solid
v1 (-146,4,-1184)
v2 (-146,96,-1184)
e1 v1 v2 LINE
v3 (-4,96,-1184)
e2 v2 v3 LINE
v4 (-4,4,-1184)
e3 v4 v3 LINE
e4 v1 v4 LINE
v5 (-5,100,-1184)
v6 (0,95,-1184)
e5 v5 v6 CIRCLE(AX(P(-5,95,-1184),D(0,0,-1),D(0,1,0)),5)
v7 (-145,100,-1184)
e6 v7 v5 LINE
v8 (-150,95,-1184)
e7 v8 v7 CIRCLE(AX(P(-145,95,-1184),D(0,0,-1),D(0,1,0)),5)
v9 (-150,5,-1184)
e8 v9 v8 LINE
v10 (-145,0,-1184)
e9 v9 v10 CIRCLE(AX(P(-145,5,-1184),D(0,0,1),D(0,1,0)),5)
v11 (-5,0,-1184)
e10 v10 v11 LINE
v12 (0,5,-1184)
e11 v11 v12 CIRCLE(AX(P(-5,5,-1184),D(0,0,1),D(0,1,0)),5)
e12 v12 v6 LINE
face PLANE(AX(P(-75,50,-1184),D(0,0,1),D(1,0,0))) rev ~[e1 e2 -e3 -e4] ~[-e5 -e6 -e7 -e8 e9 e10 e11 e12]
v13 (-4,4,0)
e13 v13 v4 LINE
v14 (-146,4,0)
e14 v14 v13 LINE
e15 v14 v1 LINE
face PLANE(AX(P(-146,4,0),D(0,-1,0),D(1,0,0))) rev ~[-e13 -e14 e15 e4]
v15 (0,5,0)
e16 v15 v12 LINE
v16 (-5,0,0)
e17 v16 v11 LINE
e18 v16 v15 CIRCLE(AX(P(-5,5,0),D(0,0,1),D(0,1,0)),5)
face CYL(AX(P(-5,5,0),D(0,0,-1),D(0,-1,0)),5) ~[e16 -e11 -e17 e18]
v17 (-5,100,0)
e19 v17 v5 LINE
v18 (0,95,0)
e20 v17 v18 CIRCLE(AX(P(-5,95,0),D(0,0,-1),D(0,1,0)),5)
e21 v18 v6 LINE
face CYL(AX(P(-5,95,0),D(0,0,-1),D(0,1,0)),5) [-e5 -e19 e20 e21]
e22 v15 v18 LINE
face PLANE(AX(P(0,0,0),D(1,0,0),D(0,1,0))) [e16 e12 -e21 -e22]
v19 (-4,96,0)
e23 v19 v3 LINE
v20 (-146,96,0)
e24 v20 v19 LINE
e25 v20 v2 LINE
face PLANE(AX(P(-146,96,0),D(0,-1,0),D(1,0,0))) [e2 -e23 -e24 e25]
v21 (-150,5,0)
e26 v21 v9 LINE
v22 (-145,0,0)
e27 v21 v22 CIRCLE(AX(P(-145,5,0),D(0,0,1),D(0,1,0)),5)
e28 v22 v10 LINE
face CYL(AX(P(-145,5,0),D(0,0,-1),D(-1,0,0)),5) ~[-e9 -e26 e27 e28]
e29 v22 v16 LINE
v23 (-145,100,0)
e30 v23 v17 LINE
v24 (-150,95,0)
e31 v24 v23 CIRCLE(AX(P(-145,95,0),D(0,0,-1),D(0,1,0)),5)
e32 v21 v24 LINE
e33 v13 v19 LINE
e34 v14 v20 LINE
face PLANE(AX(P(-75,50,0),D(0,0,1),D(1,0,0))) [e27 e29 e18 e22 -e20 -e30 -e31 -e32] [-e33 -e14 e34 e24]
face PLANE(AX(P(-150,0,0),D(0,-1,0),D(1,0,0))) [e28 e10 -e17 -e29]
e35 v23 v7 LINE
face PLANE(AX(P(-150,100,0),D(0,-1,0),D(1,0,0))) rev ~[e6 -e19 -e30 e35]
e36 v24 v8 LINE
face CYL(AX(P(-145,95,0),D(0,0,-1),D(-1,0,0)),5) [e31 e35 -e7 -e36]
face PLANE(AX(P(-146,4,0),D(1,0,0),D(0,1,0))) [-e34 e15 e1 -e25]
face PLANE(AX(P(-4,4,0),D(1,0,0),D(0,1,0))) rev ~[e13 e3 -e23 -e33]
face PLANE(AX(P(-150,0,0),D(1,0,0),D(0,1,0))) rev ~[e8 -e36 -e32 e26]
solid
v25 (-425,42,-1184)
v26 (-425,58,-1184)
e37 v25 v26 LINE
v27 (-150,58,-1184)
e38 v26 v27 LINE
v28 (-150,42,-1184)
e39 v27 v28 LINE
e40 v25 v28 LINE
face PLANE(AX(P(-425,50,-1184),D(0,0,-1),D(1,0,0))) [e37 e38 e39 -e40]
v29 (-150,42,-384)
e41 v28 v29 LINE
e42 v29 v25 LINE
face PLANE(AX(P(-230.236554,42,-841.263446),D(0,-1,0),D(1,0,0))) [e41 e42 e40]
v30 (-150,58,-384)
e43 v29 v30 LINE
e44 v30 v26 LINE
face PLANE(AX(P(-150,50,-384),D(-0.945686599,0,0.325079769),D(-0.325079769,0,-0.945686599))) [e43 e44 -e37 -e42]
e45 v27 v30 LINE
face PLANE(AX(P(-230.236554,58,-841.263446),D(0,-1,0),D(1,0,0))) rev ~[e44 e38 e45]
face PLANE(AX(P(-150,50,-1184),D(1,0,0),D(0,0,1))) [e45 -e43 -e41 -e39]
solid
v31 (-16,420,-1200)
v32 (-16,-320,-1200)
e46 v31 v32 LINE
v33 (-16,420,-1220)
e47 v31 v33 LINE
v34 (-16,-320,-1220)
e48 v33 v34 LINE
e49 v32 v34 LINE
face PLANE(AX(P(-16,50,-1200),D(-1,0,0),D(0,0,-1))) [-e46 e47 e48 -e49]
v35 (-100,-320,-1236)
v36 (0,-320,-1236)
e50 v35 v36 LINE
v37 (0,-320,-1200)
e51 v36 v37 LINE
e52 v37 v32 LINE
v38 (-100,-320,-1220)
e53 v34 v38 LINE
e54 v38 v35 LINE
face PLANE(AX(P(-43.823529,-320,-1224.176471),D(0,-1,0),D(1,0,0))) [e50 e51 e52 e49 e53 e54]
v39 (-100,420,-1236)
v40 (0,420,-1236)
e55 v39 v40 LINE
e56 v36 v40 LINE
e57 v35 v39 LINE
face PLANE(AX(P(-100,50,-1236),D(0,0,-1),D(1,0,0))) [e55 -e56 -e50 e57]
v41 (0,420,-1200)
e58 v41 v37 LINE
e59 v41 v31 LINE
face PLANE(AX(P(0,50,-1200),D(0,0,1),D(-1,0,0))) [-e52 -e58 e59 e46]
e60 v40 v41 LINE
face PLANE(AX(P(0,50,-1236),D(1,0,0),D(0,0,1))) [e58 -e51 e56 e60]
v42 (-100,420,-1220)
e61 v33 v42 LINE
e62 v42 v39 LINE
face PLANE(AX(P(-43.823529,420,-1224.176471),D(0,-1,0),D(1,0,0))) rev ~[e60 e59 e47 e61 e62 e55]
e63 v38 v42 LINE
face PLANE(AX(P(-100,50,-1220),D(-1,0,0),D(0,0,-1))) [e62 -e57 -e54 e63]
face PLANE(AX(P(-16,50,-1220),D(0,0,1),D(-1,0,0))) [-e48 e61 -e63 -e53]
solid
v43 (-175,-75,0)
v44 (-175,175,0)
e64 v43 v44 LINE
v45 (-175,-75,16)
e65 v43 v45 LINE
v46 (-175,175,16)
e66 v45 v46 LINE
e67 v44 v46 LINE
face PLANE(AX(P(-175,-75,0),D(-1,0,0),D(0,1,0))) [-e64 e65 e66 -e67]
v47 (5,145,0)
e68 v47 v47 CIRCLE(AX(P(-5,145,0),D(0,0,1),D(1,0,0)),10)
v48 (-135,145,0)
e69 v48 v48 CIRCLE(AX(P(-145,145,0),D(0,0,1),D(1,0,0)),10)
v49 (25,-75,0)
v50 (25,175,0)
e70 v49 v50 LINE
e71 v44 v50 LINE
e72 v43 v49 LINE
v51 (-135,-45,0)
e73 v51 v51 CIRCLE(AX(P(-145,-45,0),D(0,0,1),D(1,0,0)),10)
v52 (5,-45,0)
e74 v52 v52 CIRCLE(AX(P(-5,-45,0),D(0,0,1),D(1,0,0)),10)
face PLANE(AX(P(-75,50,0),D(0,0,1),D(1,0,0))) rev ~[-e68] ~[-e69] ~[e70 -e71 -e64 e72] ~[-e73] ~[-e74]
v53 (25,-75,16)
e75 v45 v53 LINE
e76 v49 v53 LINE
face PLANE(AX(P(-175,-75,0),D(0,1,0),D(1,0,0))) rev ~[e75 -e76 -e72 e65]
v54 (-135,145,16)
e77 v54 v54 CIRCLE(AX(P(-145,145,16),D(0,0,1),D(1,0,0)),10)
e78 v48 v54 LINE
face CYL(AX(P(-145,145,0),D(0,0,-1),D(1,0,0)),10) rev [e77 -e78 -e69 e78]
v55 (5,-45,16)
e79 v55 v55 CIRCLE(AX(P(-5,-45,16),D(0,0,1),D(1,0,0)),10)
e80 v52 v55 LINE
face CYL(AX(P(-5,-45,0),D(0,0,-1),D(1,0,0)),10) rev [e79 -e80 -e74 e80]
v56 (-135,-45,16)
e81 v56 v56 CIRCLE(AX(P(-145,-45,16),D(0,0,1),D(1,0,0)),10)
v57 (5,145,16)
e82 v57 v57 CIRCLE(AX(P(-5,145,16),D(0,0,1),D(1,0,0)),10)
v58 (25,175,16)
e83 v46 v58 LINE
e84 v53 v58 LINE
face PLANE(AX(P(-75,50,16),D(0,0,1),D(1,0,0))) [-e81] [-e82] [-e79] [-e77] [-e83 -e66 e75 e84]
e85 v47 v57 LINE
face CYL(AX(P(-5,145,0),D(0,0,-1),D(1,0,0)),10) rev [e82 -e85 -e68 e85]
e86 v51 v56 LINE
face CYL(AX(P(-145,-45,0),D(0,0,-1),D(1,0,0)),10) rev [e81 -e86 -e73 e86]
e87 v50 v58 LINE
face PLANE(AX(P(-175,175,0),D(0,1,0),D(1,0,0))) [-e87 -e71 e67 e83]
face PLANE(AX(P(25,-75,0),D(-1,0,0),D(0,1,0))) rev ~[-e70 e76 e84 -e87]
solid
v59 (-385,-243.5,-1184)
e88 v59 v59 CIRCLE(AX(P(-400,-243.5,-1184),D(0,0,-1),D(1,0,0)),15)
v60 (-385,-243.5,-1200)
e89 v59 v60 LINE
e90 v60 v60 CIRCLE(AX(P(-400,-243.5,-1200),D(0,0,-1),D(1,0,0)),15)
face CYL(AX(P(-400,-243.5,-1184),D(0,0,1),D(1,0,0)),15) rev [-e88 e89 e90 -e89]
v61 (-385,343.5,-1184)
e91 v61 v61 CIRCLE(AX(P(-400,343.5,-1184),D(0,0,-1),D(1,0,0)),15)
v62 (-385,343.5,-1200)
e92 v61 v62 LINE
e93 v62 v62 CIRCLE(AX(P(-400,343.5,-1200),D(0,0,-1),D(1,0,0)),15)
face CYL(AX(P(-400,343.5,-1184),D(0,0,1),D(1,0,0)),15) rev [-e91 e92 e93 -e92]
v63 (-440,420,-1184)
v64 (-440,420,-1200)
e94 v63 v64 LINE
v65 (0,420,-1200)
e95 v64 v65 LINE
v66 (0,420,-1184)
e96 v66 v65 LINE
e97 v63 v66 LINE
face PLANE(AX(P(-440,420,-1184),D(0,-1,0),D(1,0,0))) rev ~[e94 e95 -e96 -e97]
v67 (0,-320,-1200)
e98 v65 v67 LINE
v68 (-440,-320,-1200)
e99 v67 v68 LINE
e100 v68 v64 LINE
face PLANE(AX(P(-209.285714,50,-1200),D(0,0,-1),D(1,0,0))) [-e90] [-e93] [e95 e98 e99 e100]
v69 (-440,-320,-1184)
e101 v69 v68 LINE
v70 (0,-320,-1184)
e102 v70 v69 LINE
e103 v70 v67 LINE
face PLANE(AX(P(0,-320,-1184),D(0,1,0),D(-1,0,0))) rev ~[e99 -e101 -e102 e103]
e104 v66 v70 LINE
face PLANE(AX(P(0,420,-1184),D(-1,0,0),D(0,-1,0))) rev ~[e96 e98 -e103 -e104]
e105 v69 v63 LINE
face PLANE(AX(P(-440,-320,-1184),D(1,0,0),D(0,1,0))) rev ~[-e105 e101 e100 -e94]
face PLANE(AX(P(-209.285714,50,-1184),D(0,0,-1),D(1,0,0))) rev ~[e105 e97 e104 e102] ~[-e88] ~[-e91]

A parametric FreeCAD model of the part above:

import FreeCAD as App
import Part
import Sketcher


def edges_at(feature, points):
    """Names of the edges that pass closest to the given points."""
    edges = feature.Shape.Edges
    near = lambda p: min(range(len(edges)), key=lambda i: edges[i].distToShape(Part.Vertex(*p))[0])
    return sorted({f"Edge{near(p) + 1}" for p in points})

doc = App.newDocument("Part")
body = doc.addObject("PartDesign::Body", "Body")

# Sketch on XY plane
sketch1 = body.newObject("Sketcher::SketchObject", "Sketch")
sketch1.AttachmentSupport = (doc.getObject("XY_Plane"), [""])
sketch1.MapMode = "FlatFace"
sketch1.addGeometry(Part.LineSegment(App.Vector(-150, 100, 0), App.Vector(-150, 0, 0)), False)
sketch1.addGeometry(Part.LineSegment(App.Vector(-150, 0, 0), App.Vector(0, 0, 0)), False)
sketch1.addGeometry(Part.LineSegment(App.Vector(0, 0, 0), App.Vector(0, 100, 0)), False)
sketch1.addGeometry(Part.LineSegment(App.Vector(0, 100, 0), App.Vector(-150, 100, 0)), False)
sketch1.addGeometry(Part.LineSegment(App.Vector(-4, 4, 0), App.Vector(-146, 4, 0)), False)
sketch1.addGeometry(Part.LineSegment(App.Vector(-146, 4, 0), App.Vector(-146, 96, 0)), False)
sketch1.addGeometry(Part.LineSegment(App.Vector(-146, 96, 0), App.Vector(-4, 96, 0)), False)
sketch1.addGeometry(Part.LineSegment(App.Vector(-4, 96, 0), App.Vector(-4, 4, 0)), False)
sketch1.addConstraint(Sketcher.Constraint("Coincident", 0, 2, 1, 1))
sketch1.addConstraint(Sketcher.Constraint("Coincident", 1, 2, 2, 1))
sketch1.addConstraint(Sketcher.Constraint("Coincident", 2, 2, 3, 1))
sketch1.addConstraint(Sketcher.Constraint("Coincident", 3, 2, 0, 1))
sketch1.addConstraint(Sketcher.Constraint("Coincident", 4, 2, 5, 1))
sketch1.addConstraint(Sketcher.Constraint("Coincident", 5, 2, 6, 1))
sketch1.addConstraint(Sketcher.Constraint("Coincident", 6, 2, 7, 1))
sketch1.addConstraint(Sketcher.Constraint("Coincident", 7, 2, 4, 1))
sketch1.addConstraint(Sketcher.Constraint("Vertical", 0))
sketch1.addConstraint(Sketcher.Constraint("Horizontal", 1))
sketch1.addConstraint(Sketcher.Constraint("Vertical", 2))
sketch1.addConstraint(Sketcher.Constraint("Horizontal", 3))
sketch1.addConstraint(Sketcher.Constraint("Horizontal", 4))
sketch1.addConstraint(Sketcher.Constraint("Vertical", 5))
sketch1.addConstraint(Sketcher.Constraint("Horizontal", 6))
sketch1.addConstraint(Sketcher.Constraint("Vertical", 7))
sketch1.addConstraint(Sketcher.Constraint("Coincident", 1, 2, -1, 1))
sketch1.addConstraint(Sketcher.Constraint("DistanceX", 1, 1, 1, 2, 150.0))
sketch1.addConstraint(Sketcher.Constraint("DistanceX", 4, 2, 4, 1, 142.0))
sketch1.addConstraint(Sketcher.Constraint("DistanceY", 0, 2, 0, 1, 100.0))
sketch1.addConstraint(Sketcher.Constraint("DistanceY", 5, 1, 5, 2, 92.0))
sketch1.addConstraint(Sketcher.Constraint("DistanceX", 4, 2, -1, 1, 146.0))
sketch1.addConstraint(Sketcher.Constraint("DistanceY", -1, 1, 4, 2, 4.0))
pad1 = body.newObject("PartDesign::Pad", "Pad")
pad1.Profile = sketch1
pad1.Length = 1184
pad1.Reversed = True
doc.recompute()

fillet = body.newObject("PartDesign::Fillet", "Fillet")
fillet.Base = (pad1, edges_at(pad1, [
    (0, 0, -592),
    (-150, 0, -592),
    (-150, 100, -592),
    (0, 100, -592),
]))
fillet.Radius = 5
body2 = doc.addObject("PartDesign::Body", "Body001")

# Sketch on XY plane
sketch2 = body2.newObject("Sketcher::SketchObject", "Sketch001")
sketch2.AttachmentSupport = (doc.getObject("XY_Plane001"), [""])
sketch2.MapMode = "FlatFace"
sketch2.AttachmentOffset = App.Placement(App.Vector(0, 0, -1184), App.Rotation())
sketch2.addGeometry(Part.LineSegment(App.Vector(0, -320, 0), App.Vector(-440, -320, 0)), False)
sketch2.addGeometry(Part.LineSegment(App.Vector(-440, -320, 0), App.Vector(-440, 420, 0)), False)
sketch2.addGeometry(Part.LineSegment(App.Vector(-440, 420, 0), App.Vector(0, 420, 0)), False)
sketch2.addGeometry(Part.LineSegment(App.Vector(0, 420, 0), App.Vector(0, -320, 0)), False)
sketch2.addGeometry(Part.Circle(App.Vector(-400, 344, 0), App.Vector(0, 0, 1), 15), False)
sketch2.addGeometry(Part.Circle(App.Vector(-400, -244, 0), App.Vector(0, 0, 1), 15), False)
sketch2.addConstraint(Sketcher.Constraint("Coincident", 0, 2, 1, 1))
sketch2.addConstraint(Sketcher.Constraint("Coincident", 1, 2, 2, 1))
sketch2.addConstraint(Sketcher.Constraint("Coincident", 2, 2, 3, 1))
sketch2.addConstraint(Sketcher.Constraint("Coincident", 3, 2, 0, 1))
sketch2.addConstraint(Sketcher.Constraint("Horizontal", 0))
sketch2.addConstraint(Sketcher.Constraint("Vertical", 1))
sketch2.addConstraint(Sketcher.Constraint("Horizontal", 2))
sketch2.addConstraint(Sketcher.Constraint("Vertical", 3))
sketch2.addConstraint(Sketcher.Constraint("Equal", 4, 5))
sketch2.addConstraint(Sketcher.Constraint("PointOnObject", 2, 2, -2))
sketch2.addConstraint(Sketcher.Constraint("Vertical", 4, 3, 5, 3))
sketch2.addConstraint(Sketcher.Constraint("Diameter", 4, 30.0))
sketch2.addConstraint(Sketcher.Constraint("DistanceX", 0, 2, 0, 1, 440.0))
sketch2.addConstraint(Sketcher.Constraint("DistanceY", 1, 1, 1, 2, 740.0))
sketch2.addConstraint(Sketcher.Constraint("DistanceX", 4, 3, -1, 1, 400.0))
sketch2.addConstraint(Sketcher.Constraint("DistanceY", 0, 2, -1, 1, 320.0))
sketch2.addConstraint(Sketcher.Constraint("DistanceY", 5, 3, 4, 3, 587.0))
sketch2.addConstraint(Sketcher.Constraint("DistanceY", -1, 1, 4, 3, 343.5))
pad2 = body2.newObject("PartDesign::Pad", "Pad001")
pad2.Profile = sketch2
pad2.Length = 16
pad2.Reversed = True
body3 = doc.addObject("PartDesign::Body", "Body002")

# Sketch on XZ plane
sketch3 = body3.newObject("Sketcher::SketchObject", "Sketch002")
sketch3.AttachmentSupport = (doc.getObject("XZ_Plane002"), [""])
sketch3.MapMode = "FlatFace"
sketch3.AttachmentOffset = App.Placement(App.Vector(0, 0, -50), App.Rotation())
sketch3.addGeometry(Part.LineSegment(App.Vector(-425, -1184, 0), App.Vector(-150, -1184, 0)), False)
sketch3.addGeometry(Part.LineSegment(App.Vector(-150, -1184, 0), App.Vector(-150, -384, 0)), False)
sketch3.addGeometry(Part.LineSegment(App.Vector(-150, -384, 0), App.Vector(-425, -1184, 0)), False)
sketch3.addConstraint(Sketcher.Constraint("Coincident", 0, 2, 1, 1))
sketch3.addConstraint(Sketcher.Constraint("Coincident", 1, 2, 2, 1))
sketch3.addConstraint(Sketcher.Constraint("Coincident", 2, 2, 0, 1))
sketch3.addConstraint(Sketcher.Constraint("Horizontal", 0))
sketch3.addConstraint(Sketcher.Constraint("Vertical", 1))
sketch3.addConstraint(Sketcher.Constraint("DistanceX", 0, 1, 0, 2, 275.0))
sketch3.addConstraint(Sketcher.Constraint("DistanceY", 1, 1, 1, 2, 800.0))
sketch3.addConstraint(Sketcher.Constraint("DistanceX", 0, 2, -1, 1, 150.0))
sketch3.addConstraint(Sketcher.Constraint("DistanceY", 0, 2, -1, 1, 1184.0))
pad3 = body3.newObject("PartDesign::Pad", "Pad002")
pad3.Profile = sketch3
pad3.Length = 16
pad3.Midplane = True
body4 = doc.addObject("PartDesign::Body", "Body003")

# Sketch on XZ plane
sketch4 = body4.newObject("Sketcher::SketchObject", "Sketch003")
sketch4.AttachmentSupport = (doc.getObject("XZ_Plane003"), [""])
sketch4.MapMode = "FlatFace"
sketch4.AttachmentOffset = App.Placement(App.Vector(0, 0, -50), App.Rotation())
sketch4.addGeometry(Part.LineSegment(App.Vector(0, -1236, 0), App.Vector(0, -1200, 0)), False)
sketch4.addGeometry(Part.LineSegment(App.Vector(0, -1200, 0), App.Vector(-16, -1200, 0)), False)
sketch4.addGeometry(Part.LineSegment(App.Vector(-16, -1200, 0), App.Vector(-16, -1220, 0)), False)
sketch4.addGeometry(Part.LineSegment(App.Vector(-16, -1220, 0), App.Vector(-100, -1220, 0)), False)
sketch4.addGeometry(Part.LineSegment(App.Vector(-100, -1220, 0), App.Vector(-100, -1236, 0)), False)
sketch4.addGeometry(Part.LineSegment(App.Vector(-100, -1236, 0), App.Vector(0, -1236, 0)), False)
sketch4.addConstraint(Sketcher.Constraint("Coincident", 0, 2, 1, 1))
sketch4.addConstraint(Sketcher.Constraint("Coincident", 1, 2, 2, 1))
sketch4.addConstraint(Sketcher.Constraint("Coincident", 2, 2, 3, 1))
sketch4.addConstraint(Sketcher.Constraint("Coincident", 3, 2, 4, 1))
sketch4.addConstraint(Sketcher.Constraint("Coincident", 4, 2, 5, 1))
sketch4.addConstraint(Sketcher.Constraint("Coincident", 5, 2, 0, 1))
sketch4.addConstraint(Sketcher.Constraint("Vertical", 0))
sketch4.addConstraint(Sketcher.Constraint("Horizontal", 1))
sketch4.addConstraint(Sketcher.Constraint("Vertical", 2))
sketch4.addConstraint(Sketcher.Constraint("Horizontal", 3))
sketch4.addConstraint(Sketcher.Constraint("Vertical", 4))
sketch4.addConstraint(Sketcher.Constraint("Horizontal", 5))
sketch4.addConstraint(Sketcher.Constraint("PointOnObject", 0, 2, -2))
sketch4.addConstraint(Sketcher.Constraint("Equal", 1, 4))
sketch4.addConstraint(Sketcher.Constraint("DistanceX", 1, 2, 1, 1, 16.0))
sketch4.addConstraint(Sketcher.Constraint("DistanceX", 3, 2, 3, 1, 84.0))
sketch4.addConstraint(Sketcher.Constraint("DistanceY", 0, 1, 0, 2, 36.0))
sketch4.addConstraint(Sketcher.Constraint("DistanceY", 0, 2, -1, 1, 1200.0))
pad4 = body4.newObject("PartDesign::Pad", "Pad003")
pad4.Profile = sketch4
pad4.Length = 740
pad4.Midplane = True
body5 = doc.addObject("PartDesign::Body", "Body004")

# Sketch on XY plane
sketch5 = body5.newObject("Sketcher::SketchObject", "Sketch004")
sketch5.AttachmentSupport = (doc.getObject("XY_Plane004"), [""])
sketch5.MapMode = "FlatFace"
sketch5.addGeometry(Part.LineSegment(App.Vector(-175, 175, 0), App.Vector(-175, -75, 0)), False)
sketch5.addGeometry(Part.LineSegment(App.Vector(-175, -75, 0), App.Vector(25, -75, 0)), False)
sketch5.addGeometry(Part.LineSegment(App.Vector(25, -75, 0), App.Vector(25, 175, 0)), False)
sketch5.addGeometry(Part.LineSegment(App.Vector(25, 175, 0), App.Vector(-175, 175, 0)), False)
sketch5.addGeometry(Part.Circle(App.Vector(-145, -45, 0), App.Vector(0, 0, 1), 10), False)
sketch5.addGeometry(Part.Circle(App.Vector(-5, -45, 0), App.Vector(0, 0, 1), 10), False)
sketch5.addGeometry(Part.Circle(App.Vector(-145, 145, 0), App.Vector(0, 0, 1), 10), False)
sketch5.addGeometry(Part.Circle(App.Vector(-5, 145, 0), App.Vector(0, 0, 1), 10), False)
sketch5.addConstraint(Sketcher.Constraint("Coincident", 0, 2, 1, 1))
sketch5.addConstraint(Sketcher.Constraint("Coincident", 1, 2, 2, 1))
sketch5.addConstraint(Sketcher.Constraint("Coincident", 2, 2, 3, 1))
sketch5.addConstraint(Sketcher.Constraint("Coincident", 3, 2, 0, 1))
sketch5.addConstraint(Sketcher.Constraint("Vertical", 0))
sketch5.addConstraint(Sketcher.Constraint("Horizontal", 1))
sketch5.addConstraint(Sketcher.Constraint("Vertical", 2))
sketch5.addConstraint(Sketcher.Constraint("Horizontal", 3))
sketch5.addConstraint(Sketcher.Constraint("Equal", 4, 5))
sketch5.addConstraint(Sketcher.Constraint("Equal", 5, 6))
sketch5.addConstraint(Sketcher.Constraint("Equal", 6, 7))
sketch5.addConstraint(Sketcher.Constraint("Horizontal", 4, 3, 5, 3))
sketch5.addConstraint(Sketcher.Constraint("Horizontal", 6, 3, 7, 3))
sketch5.addConstraint(Sketcher.Constraint("Vertical", 4, 3, 6, 3))
sketch5.addConstraint(Sketcher.Constraint("Vertical", 5, 3, 7, 3))
sketch5.addConstraint(Sketcher.Constraint("Diameter", 4, 20.0))
sketch5.addConstraint(Sketcher.Constraint("DistanceX", 1, 1, 1, 2, 200.0))
sketch5.addConstraint(Sketcher.Constraint("DistanceY", 0, 2, 0, 1, 250.0))
sketch5.addConstraint(Sketcher.Constraint("DistanceX", 4, 3, -1, 1, 145.0))
sketch5.addConstraint(Sketcher.Constraint("DistanceY", 4, 3, -1, 1, 45.0))
sketch5.addConstraint(Sketcher.Constraint("DistanceX", 5, 3, -1, 1, 5.0))
sketch5.addConstraint(Sketcher.Constraint("DistanceY", -1, 1, 6, 3, 145.0))
sketch5.addConstraint(Sketcher.Constraint("DistanceX", 0, 2, -1, 1, 175.0))
sketch5.addConstraint(Sketcher.Constraint("DistanceY", 0, 2, -1, 1, 75.0))
pad5 = body5.newObject("PartDesign::Pad", "Pad004")
pad5.Profile = sketch5
pad5.Length = 16

doc.recompute()
